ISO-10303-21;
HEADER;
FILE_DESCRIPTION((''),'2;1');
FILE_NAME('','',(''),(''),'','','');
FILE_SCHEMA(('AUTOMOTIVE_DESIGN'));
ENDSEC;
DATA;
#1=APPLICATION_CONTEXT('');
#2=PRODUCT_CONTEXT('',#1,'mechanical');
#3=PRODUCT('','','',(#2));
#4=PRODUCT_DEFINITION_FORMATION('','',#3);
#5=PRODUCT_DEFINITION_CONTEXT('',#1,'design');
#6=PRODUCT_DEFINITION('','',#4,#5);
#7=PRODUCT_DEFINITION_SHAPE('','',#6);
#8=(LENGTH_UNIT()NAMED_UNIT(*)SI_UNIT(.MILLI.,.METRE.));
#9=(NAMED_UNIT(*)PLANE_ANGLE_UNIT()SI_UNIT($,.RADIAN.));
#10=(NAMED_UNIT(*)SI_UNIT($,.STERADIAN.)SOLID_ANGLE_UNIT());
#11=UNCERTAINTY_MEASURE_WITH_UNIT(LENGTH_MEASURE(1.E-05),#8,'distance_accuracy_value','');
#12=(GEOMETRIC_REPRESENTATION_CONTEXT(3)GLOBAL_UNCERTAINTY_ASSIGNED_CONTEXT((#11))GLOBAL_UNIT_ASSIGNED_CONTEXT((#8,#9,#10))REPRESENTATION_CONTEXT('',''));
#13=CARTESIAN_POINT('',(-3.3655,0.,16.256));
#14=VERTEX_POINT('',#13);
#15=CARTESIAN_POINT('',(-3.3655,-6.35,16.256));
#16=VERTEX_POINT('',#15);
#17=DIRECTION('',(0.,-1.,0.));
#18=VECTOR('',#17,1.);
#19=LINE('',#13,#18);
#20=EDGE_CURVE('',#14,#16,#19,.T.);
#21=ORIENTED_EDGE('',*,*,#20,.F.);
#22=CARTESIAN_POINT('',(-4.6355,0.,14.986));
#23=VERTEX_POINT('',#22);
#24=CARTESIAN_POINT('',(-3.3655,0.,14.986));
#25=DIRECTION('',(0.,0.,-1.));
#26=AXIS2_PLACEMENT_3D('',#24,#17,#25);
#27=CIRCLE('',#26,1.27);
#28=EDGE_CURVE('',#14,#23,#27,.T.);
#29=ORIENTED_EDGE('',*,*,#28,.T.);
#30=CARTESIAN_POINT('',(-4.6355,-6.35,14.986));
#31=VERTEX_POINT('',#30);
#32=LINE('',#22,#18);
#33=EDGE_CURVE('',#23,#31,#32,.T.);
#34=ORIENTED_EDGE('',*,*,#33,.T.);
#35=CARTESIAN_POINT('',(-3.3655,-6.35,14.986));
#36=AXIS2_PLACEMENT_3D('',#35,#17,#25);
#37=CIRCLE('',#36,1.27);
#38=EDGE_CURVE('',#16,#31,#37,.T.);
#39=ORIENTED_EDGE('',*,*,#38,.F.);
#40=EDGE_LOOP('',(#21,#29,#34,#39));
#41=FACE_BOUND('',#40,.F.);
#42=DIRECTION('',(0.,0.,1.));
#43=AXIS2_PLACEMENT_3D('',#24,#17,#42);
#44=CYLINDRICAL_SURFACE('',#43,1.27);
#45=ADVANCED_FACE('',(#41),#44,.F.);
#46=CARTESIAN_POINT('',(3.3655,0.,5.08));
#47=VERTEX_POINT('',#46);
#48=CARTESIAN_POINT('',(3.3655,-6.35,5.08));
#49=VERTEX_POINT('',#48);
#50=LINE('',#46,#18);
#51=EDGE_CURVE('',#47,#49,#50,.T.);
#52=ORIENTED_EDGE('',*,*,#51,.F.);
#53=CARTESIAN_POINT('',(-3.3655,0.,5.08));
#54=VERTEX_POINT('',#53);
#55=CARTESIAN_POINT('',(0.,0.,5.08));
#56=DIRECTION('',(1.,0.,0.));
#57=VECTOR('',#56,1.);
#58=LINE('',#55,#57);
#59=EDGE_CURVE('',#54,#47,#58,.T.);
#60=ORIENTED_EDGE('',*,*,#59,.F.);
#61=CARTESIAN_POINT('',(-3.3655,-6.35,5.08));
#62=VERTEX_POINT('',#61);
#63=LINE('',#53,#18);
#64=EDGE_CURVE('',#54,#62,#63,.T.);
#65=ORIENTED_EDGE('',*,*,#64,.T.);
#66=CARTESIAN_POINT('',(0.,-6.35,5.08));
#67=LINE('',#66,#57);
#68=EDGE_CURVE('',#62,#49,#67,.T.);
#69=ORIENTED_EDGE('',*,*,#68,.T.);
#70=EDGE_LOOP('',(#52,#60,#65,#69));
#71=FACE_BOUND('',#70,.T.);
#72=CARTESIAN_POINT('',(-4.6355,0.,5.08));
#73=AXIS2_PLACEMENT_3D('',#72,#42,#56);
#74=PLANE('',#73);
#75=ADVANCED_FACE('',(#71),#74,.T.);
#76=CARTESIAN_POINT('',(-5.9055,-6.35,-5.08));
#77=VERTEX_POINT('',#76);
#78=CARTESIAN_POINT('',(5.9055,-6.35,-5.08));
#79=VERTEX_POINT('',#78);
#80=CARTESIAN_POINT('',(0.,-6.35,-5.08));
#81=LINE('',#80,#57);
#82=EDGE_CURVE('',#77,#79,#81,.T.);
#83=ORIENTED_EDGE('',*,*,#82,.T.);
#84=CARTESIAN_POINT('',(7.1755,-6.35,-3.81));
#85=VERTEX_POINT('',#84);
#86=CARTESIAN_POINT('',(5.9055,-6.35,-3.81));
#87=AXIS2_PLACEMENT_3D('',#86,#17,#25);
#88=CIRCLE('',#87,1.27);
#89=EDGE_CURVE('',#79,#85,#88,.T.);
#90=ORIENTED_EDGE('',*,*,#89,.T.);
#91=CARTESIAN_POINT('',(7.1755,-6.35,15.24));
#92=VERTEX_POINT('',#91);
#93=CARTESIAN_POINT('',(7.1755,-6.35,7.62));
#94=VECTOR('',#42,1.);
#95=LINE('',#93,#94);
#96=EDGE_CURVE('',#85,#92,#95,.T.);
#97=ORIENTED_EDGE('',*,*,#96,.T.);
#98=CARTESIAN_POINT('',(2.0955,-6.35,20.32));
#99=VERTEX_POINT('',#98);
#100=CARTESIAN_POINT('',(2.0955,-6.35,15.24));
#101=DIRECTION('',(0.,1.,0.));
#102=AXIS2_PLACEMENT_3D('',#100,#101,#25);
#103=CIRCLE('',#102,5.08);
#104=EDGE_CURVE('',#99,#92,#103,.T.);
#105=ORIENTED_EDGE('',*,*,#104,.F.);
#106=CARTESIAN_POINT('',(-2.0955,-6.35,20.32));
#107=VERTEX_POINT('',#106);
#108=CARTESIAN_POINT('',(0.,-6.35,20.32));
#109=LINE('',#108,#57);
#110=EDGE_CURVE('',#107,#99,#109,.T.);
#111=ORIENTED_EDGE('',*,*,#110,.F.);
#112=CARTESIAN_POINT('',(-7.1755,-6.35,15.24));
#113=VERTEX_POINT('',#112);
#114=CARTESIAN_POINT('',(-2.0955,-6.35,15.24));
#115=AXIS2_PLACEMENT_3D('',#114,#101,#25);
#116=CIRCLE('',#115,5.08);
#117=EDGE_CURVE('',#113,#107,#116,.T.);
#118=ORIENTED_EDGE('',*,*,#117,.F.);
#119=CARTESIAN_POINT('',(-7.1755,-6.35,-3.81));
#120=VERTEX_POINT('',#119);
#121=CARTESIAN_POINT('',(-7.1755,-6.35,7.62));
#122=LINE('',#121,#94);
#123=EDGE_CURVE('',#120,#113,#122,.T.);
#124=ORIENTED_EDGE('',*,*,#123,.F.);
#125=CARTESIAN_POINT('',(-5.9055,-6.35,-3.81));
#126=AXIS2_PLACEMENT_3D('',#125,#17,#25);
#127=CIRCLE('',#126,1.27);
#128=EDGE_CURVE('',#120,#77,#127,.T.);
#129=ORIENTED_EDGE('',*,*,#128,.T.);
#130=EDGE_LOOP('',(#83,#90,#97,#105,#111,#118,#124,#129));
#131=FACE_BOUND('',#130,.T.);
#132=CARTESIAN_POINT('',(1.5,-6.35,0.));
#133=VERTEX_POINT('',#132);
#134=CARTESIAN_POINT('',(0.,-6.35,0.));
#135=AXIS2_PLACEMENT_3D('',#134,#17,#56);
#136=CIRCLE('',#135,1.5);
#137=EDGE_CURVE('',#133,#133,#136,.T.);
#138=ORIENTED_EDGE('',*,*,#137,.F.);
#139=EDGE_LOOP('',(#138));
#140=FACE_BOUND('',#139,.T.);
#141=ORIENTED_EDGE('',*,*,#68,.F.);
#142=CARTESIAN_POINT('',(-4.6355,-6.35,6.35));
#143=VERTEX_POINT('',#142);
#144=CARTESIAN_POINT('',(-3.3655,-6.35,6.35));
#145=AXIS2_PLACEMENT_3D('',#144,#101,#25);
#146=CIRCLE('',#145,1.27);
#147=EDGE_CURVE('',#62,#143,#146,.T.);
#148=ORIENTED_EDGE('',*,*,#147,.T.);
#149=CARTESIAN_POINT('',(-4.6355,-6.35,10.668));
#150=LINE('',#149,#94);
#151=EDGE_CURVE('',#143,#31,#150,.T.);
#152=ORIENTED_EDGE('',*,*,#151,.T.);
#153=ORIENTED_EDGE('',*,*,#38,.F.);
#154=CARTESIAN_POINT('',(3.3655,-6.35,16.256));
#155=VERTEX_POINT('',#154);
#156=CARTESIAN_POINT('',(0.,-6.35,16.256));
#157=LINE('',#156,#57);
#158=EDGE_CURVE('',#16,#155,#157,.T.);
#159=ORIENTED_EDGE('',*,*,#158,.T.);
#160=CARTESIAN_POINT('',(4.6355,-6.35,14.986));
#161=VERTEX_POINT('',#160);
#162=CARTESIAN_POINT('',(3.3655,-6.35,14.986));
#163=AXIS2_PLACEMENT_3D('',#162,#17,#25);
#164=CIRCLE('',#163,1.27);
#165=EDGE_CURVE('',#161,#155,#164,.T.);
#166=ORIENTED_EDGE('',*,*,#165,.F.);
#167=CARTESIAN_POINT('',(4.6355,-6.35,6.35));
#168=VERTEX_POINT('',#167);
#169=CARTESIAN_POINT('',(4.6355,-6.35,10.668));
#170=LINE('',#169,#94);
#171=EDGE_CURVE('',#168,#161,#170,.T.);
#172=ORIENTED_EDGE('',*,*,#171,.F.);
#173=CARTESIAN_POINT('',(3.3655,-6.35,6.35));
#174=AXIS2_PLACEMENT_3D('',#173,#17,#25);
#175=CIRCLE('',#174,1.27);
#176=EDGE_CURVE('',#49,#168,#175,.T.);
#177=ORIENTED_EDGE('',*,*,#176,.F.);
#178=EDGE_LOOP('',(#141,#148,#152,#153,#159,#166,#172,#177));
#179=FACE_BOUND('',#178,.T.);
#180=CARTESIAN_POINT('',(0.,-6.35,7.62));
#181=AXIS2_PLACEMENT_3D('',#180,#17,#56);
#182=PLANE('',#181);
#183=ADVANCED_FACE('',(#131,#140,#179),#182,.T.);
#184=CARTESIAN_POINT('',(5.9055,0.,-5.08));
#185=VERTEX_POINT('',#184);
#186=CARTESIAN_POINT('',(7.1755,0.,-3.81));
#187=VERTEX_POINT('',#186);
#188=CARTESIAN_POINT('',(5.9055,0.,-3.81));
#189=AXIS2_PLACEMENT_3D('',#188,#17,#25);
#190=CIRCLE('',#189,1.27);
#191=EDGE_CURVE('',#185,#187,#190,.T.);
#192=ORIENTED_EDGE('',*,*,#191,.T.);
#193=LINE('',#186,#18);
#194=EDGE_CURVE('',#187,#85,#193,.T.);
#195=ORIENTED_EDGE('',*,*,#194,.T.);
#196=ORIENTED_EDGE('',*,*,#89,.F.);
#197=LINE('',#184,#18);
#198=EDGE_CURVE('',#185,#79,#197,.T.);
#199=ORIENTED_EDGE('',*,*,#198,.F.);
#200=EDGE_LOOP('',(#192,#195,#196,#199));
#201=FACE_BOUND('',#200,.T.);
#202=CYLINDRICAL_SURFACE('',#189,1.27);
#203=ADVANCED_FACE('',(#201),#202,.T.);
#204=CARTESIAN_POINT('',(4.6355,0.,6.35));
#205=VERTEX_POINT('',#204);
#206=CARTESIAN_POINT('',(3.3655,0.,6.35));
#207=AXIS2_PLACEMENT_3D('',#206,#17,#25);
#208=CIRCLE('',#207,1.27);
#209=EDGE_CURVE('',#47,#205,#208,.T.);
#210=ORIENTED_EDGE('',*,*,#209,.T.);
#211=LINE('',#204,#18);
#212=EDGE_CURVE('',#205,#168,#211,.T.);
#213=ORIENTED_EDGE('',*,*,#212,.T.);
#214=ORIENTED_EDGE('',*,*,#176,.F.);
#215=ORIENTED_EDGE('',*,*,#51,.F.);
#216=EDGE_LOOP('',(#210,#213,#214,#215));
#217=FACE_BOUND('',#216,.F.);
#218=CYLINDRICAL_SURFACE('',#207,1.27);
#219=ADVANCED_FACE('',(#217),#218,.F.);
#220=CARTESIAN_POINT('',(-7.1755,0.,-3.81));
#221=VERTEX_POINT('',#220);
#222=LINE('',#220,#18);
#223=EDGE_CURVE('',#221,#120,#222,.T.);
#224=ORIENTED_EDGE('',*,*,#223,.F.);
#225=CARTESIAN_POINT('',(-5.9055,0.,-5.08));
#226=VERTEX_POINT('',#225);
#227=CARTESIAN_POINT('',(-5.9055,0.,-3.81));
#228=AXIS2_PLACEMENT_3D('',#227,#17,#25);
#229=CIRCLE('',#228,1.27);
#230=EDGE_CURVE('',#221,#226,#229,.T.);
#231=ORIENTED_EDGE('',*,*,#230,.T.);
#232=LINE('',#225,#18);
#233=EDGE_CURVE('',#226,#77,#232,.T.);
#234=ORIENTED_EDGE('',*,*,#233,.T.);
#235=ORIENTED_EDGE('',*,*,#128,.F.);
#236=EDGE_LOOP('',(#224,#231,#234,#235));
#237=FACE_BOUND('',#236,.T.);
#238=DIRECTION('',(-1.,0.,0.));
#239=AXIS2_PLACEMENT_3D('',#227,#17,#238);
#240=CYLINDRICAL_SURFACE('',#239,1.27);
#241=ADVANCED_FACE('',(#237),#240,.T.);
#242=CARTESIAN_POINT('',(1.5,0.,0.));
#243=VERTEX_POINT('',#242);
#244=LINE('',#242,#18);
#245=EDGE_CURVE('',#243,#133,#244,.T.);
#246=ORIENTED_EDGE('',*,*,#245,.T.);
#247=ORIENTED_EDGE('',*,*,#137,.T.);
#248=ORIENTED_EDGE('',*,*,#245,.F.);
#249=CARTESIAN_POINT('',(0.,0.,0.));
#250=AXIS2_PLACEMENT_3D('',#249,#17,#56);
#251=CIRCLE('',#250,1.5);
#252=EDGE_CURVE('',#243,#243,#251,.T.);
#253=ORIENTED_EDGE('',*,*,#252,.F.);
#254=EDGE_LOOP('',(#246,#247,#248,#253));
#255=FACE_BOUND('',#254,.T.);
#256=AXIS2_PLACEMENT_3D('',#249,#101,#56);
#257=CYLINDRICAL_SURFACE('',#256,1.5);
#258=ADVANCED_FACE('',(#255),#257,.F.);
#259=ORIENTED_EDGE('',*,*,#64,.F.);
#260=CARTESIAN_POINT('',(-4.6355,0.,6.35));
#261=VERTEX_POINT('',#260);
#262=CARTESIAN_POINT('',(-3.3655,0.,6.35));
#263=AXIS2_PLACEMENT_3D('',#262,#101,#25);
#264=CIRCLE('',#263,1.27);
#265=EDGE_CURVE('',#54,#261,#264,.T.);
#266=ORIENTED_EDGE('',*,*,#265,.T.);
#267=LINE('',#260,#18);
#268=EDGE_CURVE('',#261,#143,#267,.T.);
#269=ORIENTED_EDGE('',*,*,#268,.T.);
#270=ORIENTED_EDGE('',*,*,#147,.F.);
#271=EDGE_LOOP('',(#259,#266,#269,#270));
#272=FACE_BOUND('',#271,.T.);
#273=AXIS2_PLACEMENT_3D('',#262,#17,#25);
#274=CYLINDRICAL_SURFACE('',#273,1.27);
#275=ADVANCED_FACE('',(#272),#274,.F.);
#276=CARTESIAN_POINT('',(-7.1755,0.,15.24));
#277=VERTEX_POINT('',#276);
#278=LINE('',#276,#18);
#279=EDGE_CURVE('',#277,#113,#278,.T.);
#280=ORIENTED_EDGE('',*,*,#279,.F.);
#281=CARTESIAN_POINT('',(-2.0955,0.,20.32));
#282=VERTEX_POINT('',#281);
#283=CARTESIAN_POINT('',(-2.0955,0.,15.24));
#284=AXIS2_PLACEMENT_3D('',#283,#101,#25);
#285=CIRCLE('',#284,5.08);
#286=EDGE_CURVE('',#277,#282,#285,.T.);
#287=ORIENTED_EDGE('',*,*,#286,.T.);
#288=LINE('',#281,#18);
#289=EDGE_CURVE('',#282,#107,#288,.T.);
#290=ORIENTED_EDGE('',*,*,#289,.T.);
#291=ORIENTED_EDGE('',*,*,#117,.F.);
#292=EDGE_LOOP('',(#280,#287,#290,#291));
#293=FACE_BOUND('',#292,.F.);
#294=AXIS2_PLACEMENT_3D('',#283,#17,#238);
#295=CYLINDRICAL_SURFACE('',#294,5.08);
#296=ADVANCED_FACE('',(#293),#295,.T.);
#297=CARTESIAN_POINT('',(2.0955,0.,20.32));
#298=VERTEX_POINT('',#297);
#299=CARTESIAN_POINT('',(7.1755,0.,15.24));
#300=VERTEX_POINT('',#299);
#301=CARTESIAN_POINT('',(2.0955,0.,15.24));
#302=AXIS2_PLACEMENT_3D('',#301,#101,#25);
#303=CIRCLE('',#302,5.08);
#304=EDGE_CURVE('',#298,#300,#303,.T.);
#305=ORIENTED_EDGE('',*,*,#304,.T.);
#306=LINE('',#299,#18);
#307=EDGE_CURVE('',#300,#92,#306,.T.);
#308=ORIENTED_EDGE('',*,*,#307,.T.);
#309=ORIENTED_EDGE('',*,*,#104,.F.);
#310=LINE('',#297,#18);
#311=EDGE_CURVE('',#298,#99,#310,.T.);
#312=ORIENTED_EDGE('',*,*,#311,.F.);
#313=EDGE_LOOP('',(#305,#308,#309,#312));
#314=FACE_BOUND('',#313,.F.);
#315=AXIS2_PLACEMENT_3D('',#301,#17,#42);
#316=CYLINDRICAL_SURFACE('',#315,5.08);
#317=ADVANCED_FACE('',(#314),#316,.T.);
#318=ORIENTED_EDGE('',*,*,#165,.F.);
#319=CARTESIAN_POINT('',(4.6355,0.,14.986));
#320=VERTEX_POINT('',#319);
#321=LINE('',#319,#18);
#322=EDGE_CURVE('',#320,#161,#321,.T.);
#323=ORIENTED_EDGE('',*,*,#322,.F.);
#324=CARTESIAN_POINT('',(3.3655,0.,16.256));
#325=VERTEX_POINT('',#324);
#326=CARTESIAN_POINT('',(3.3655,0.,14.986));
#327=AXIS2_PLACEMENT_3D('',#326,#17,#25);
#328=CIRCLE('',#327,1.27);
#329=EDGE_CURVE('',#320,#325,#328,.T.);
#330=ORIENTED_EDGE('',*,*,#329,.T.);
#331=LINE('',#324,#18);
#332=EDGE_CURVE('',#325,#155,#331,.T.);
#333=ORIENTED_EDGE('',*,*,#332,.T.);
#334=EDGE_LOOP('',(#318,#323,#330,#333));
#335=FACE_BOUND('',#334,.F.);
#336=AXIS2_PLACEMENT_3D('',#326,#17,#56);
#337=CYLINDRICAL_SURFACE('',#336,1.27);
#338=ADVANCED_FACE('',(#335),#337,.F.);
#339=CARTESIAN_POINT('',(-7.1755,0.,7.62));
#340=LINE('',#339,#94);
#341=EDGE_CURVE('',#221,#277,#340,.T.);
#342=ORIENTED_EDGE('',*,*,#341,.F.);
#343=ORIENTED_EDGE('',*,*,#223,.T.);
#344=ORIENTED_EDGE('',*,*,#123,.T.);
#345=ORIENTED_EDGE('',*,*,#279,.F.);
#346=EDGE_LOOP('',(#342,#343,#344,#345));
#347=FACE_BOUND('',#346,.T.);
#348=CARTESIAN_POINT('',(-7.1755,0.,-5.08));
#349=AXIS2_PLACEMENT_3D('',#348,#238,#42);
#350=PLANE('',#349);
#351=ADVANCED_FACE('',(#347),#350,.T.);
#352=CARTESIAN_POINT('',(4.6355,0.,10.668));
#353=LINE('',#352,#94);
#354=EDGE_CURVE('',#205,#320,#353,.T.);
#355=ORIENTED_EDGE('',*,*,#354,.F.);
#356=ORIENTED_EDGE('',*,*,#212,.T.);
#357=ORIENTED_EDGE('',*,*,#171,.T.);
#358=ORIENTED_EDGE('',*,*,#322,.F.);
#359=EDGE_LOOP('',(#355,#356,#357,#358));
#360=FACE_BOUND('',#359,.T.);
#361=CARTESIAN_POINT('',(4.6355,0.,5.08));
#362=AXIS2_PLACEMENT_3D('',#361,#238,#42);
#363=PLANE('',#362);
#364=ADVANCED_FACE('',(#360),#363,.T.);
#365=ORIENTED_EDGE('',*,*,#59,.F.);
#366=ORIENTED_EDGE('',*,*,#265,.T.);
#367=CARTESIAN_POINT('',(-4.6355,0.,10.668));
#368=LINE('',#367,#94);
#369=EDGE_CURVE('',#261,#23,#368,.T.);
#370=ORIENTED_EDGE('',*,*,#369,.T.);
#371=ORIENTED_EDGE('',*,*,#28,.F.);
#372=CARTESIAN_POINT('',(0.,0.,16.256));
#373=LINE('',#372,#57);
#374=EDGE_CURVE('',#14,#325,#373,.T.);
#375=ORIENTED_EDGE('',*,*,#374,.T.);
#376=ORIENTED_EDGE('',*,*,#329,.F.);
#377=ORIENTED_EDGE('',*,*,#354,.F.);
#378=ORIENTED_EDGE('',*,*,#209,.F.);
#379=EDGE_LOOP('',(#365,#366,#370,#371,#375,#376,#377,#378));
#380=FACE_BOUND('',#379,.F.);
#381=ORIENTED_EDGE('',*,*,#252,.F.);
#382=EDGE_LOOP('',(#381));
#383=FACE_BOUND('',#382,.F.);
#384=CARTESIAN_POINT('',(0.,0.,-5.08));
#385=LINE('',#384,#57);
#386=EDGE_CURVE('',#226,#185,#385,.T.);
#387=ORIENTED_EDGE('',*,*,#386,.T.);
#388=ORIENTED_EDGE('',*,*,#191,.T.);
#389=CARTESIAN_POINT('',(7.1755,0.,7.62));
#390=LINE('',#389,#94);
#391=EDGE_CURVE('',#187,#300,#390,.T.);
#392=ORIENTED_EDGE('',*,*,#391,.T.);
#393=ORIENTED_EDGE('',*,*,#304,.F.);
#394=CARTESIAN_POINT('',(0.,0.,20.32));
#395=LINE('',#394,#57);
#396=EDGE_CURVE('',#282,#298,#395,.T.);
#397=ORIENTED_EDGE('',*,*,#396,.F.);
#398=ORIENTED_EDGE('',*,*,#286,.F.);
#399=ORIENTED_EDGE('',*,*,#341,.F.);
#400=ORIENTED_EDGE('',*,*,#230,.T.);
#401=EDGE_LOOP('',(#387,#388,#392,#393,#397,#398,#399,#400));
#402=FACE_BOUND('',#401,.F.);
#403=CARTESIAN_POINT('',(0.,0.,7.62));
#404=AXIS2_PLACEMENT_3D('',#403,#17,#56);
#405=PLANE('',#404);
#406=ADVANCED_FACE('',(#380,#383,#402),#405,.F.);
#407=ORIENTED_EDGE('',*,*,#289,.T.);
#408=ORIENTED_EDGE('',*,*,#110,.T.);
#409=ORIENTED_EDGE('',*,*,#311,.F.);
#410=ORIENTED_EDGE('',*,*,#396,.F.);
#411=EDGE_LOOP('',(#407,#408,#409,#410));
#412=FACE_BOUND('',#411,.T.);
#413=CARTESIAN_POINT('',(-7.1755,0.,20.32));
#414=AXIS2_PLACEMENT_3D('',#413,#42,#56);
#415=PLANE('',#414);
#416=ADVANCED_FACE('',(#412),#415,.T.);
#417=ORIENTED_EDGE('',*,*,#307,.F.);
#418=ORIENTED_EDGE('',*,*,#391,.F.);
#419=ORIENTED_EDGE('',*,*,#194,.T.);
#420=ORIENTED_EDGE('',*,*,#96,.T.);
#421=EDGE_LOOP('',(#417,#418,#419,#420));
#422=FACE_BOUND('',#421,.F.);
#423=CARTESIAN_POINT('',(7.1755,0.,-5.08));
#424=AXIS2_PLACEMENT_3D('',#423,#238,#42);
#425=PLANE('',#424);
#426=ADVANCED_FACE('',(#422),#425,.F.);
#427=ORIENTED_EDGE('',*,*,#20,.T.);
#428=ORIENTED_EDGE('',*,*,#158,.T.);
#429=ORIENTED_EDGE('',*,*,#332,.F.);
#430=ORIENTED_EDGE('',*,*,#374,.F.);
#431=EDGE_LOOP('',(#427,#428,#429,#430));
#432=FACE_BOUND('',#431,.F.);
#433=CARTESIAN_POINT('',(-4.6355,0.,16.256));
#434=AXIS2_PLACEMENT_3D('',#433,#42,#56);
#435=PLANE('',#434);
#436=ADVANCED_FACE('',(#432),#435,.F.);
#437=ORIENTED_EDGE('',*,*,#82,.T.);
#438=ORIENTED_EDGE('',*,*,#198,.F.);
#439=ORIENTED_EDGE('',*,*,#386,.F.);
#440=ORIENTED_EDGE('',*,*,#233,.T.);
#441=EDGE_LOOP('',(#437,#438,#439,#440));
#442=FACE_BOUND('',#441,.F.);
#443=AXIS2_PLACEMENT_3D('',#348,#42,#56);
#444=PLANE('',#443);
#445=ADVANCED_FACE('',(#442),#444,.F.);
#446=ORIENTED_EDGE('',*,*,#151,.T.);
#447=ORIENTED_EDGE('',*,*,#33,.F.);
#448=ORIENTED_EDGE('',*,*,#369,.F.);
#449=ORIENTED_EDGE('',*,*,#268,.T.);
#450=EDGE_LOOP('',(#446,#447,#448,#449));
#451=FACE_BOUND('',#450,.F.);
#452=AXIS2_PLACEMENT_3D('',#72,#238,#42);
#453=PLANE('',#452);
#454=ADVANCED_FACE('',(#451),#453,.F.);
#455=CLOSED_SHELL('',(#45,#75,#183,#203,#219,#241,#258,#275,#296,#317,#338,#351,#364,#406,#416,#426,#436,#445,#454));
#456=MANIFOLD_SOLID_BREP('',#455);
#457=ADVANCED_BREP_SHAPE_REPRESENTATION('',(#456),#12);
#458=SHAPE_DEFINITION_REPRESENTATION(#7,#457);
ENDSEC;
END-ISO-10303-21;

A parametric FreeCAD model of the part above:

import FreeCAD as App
import Part
import Sketcher

V = App.Vector
Q = App.Units.Quantity


def edges_at(feature, points):
    """Names of the edges that pass closest to the given points."""
    edges = feature.Shape.Edges
    near = lambda p: min(range(len(edges)), key=lambda i: edges[i].distToShape(Part.Vertex(*p))[0])
    return sorted({f"Edge{near(p) + 1}" for p in points})


def add_polygon(sketch, points):
    """Adds a closed chain of lines whose ends are joined by coincident constraints."""
    first, n = sketch.GeometryCount, len(points)
    for a, b in zip(points, points[1:] + points[:1]):
        sketch.addGeometry(Part.LineSegment(App.Vector(*a, 0), App.Vector(*b, 0)), False)
    for i in range(n):
        sketch.addConstraint(Sketcher.Constraint("Coincident", first + i, 2, first + (i + 1) % n, 1))

doc = App.newDocument("Part")
body = doc.addObject("PartDesign::Body", "Body")

sketch1 = body.newObject("Sketcher::SketchObject", "Sketch")
sketch1.AttachmentSupport = (doc.getObject("XZ_Plane"), [""])
sketch1.MapMode = "FlatFace"
add_polygon(sketch1, [(-7.1755, 20.32), (-7.1755, -5.08), (7.1755, -5.08), (7.1755, 20.32)])
sketch1.addGeometry(Part.Circle(V(0, 0, 0), V(0, 0, 1), 1.5), False)
add_polygon(sketch1, [(4.6355, 5.08), (-4.6355, 5.08), (-4.6355, 16.256), (4.6355, 16.256)])
sketch1.addConstraint([
    Sketcher.Constraint("Vertical", 0),
    Sketcher.Constraint("Horizontal", 1),
    Sketcher.Constraint("Vertical", 2),
    Sketcher.Constraint("Horizontal", 3),
    Sketcher.Constraint("Horizontal", 5),
    Sketcher.Constraint("Vertical", 6),
    Sketcher.Constraint("Horizontal", 7),
    Sketcher.Constraint("Vertical", 8),
    Sketcher.Constraint("Coincident", 4, 3, -1, 1),
    Sketcher.Constraint("DistanceY", 0, 2, 0, 1, Q("1 in")),
    Sketcher.Constraint("DistanceY", 6, 1, 6, 2, Q("0.44 in")),
    Sketcher.Constraint("DistanceY", 0, 2, -1, 1, Q("0.2 in")),
    Sketcher.Constraint("DistanceY", -1, 1, 5, 2, Q("0.2 in")),
    Sketcher.Constraint("DistanceX", 0, 2, 5, 2, Q("0.1 in")),
    Sketcher.Constraint("DistanceX", 7, 2, 2, 2, Q("0.1 in")),
    Sketcher.Constraint("Diameter", 4, Q("3 mm")),
    Sketcher.Constraint("DistanceX", 1, 1, 1, 2, Q("0.565 in")),
    Sketcher.Constraint("DistanceX", 0, 2, -1, 1, Q("0.2825 in")),
])
pad1 = body.newObject("PartDesign::Pad", "Pad")
pad1.Profile = sketch1
pad1.Length = Q("0.25 in")
doc.recompute()

fillet = body.newObject("PartDesign::Fillet", "Fillet")
fillet.Base = (pad1, edges_at(pad1, [(7.176, -3.175, 20.32), (-7.176, -3.175, 20.32)]))
fillet.Radius = Q("0.2 in")
doc.recompute()

fillet2 = body.newObject("PartDesign::Fillet", "Fillet001")
fillet2.Base = (fillet, edges_at(fillet, [
    (7.176, -3.175, -5.08),
    (-7.176, -3.175, -5.08),
    (-4.636, -3.175, 16.256),
    (4.636, -3.175, 16.256),
    (-4.636, -3.175, 5.08),
    (4.636, -3.175, 5.08),
]))
fillet2.Radius = Q("0.05 in")

doc.recompute()
